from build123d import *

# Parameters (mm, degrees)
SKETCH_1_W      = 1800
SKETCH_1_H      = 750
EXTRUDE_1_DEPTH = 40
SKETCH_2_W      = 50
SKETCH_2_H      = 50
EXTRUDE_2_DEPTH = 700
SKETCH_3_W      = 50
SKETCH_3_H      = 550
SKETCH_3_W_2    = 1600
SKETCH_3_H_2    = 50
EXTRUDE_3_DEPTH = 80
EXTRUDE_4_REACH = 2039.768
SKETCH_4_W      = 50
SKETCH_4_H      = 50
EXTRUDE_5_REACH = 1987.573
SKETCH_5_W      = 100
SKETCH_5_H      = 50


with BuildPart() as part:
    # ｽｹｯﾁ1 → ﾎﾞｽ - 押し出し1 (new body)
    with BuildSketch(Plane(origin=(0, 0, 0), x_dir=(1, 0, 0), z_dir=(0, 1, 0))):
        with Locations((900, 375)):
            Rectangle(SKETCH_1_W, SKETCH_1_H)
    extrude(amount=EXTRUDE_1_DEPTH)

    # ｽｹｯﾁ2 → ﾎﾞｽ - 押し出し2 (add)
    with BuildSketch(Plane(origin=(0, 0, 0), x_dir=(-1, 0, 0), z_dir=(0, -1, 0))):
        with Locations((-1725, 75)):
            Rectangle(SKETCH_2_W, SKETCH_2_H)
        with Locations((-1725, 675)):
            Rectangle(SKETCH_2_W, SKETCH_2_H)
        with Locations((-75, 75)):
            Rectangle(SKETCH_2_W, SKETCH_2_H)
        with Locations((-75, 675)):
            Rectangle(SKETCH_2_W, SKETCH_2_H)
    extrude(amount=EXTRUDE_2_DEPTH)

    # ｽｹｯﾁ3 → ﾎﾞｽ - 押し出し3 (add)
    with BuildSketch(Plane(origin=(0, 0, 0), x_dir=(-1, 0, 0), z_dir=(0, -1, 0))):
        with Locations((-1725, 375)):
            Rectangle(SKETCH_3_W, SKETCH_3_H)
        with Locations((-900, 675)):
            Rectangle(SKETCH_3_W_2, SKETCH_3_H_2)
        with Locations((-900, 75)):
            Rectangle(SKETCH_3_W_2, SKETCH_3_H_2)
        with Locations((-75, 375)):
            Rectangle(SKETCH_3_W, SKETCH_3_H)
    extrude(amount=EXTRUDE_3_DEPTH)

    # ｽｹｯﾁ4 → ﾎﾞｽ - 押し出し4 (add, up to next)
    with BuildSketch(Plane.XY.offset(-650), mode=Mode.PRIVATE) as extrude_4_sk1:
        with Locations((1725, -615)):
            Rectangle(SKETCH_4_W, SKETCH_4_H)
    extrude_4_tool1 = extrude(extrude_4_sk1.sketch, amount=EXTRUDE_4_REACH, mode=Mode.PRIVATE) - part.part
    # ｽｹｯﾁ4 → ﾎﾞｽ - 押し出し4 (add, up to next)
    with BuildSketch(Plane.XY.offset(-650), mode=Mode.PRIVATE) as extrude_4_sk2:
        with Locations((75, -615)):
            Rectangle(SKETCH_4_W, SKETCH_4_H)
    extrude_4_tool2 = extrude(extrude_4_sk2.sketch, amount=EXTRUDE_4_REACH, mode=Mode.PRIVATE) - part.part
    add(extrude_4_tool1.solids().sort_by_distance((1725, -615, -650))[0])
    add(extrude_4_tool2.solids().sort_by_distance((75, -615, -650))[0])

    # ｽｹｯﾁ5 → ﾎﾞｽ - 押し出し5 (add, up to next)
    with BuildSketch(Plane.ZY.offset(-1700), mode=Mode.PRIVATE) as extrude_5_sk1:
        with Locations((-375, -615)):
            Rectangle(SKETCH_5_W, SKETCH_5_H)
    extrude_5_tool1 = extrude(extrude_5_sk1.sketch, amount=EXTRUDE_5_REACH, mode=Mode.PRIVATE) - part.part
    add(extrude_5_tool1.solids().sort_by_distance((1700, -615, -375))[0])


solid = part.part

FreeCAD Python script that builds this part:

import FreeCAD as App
import Part
import Sketcher
Q = App.Units.Quantity


def add_polygon(sketch, points):
    """Adds a closed chain of lines whose ends are joined by coincident constraints."""
    first, n = sketch.GeometryCount, len(points)
    for a, b in zip(points, points[1:] + points[:1]):
        sketch.addGeometry(Part.LineSegment(App.Vector(*a, 0), App.Vector(*b, 0)), False)
    for i in range(n):
        sketch.addConstraint(Sketcher.Constraint("Coincident", first + i, 2, first + (i + 1) % n, 1))

doc = App.newDocument("Part")
body = doc.addObject("PartDesign::Body", "Body")

# Sketch on XZ plane
sketch1 = body.newObject("Sketcher::SketchObject", "Sketch")
sketch1.AttachmentSupport = (doc.getObject("XZ_Plane"), [""])
sketch1.MapMode = "FlatFace"
add_polygon(sketch1, [(0, -750), (0, 0), (1800, 0), (1800, -750)])  # lines 0-3
sketch1.addConstraint([
    Sketcher.Constraint("Vertical", 0),
    Sketcher.Constraint("Horizontal", 1),
    Sketcher.Constraint("Vertical", 2),
    Sketcher.Constraint("Horizontal", 3),
    Sketcher.Constraint("Coincident", 0, 2, -1, 1),
    Sketcher.Constraint("DistanceX", 1, 1, 1, 2, Q("1800 mm")),
    Sketcher.Constraint("DistanceY", 0, 1, 0, 2, Q("750 mm")),
])
pad1 = body.newObject("PartDesign::Pad", "Pad")
pad1.Profile = sketch1
pad1.Length = 40
pad1.Reversed = True

# Sketch on XZ plane
sketch2 = body.newObject("Sketcher::SketchObject", "Sketch001")
sketch2.AttachmentSupport = (doc.getObject("XZ_Plane"), [""])
sketch2.MapMode = "FlatFace"
add_polygon(sketch2, [(1750, -100), (1750, -50), (1700, -50), (1700, -100)])  # lines 0-3
add_polygon(sketch2, [(1750, -700), (1750, -650), (1700, -650), (1700, -700)])  # lines 4-7
add_polygon(sketch2, [(100, -100), (100, -50), (50, -50), (50, -100)])  # lines 8-11
add_polygon(sketch2, [(100, -700), (100, -650), (50, -650), (50, -700)])  # lines 12-15
sketch2.addConstraint([
    Sketcher.Constraint("Vertical", 0),
    Sketcher.Constraint("Horizontal", 1),
    Sketcher.Constraint("Vertical", 2),
    Sketcher.Constraint("Horizontal", 3),
    Sketcher.Constraint("Vertical", 4),
    Sketcher.Constraint("Horizontal", 5),
    Sketcher.Constraint("Vertical", 6),
    Sketcher.Constraint("Horizontal", 7),
    Sketcher.Constraint("Vertical", 8),
    Sketcher.Constraint("Horizontal", 9),
    Sketcher.Constraint("Vertical", 10),
    Sketcher.Constraint("Horizontal", 11),
    Sketcher.Constraint("Vertical", 12),
    Sketcher.Constraint("Horizontal", 13),
    Sketcher.Constraint("Vertical", 14),
    Sketcher.Constraint("Horizontal", 15),
    Sketcher.Constraint("Horizontal", 1, 2, 8, 2),
    Sketcher.Constraint("Horizontal", 3, 2, 10, 2),
    Sketcher.Constraint("Horizontal", 5, 2, 12, 2),
    Sketcher.Constraint("Horizontal", 7, 2, 14, 2),
    Sketcher.Constraint("Vertical", 3, 2, 4, 2),
    Sketcher.Constraint("Vertical", 2, 2, 5, 2),
    Sketcher.Constraint("Vertical", 11, 2, 12, 2),
    Sketcher.Constraint("Vertical", 10, 2, 13, 2),
    Sketcher.Constraint("Equal", 7, 9),
    Sketcher.Constraint("Equal", 15, 0),
    Sketcher.Constraint("Equal", 2, 4),
    Sketcher.Constraint("DistanceX", 1, 2, 1, 1, Q("50 mm")),
    Sketcher.Constraint("DistanceX", -1, 1, 0, 2, Q("1750 mm")),
    Sketcher.Constraint("DistanceY", 0, 2, -1, 1, Q("50 mm")),
    Sketcher.Constraint("DistanceY", 4, 2, -1, 1, Q("650 mm")),
    Sketcher.Constraint("DistanceX", -1, 1, 8, 2, Q("100 mm")),
])
pad2 = body.newObject("PartDesign::Pad", "Pad001")
pad2.Profile = sketch2
pad2.Length = 700

# Sketch on XZ plane
sketch3 = body.newObject("Sketcher::SketchObject", "Sketch002")
sketch3.AttachmentSupport = (doc.getObject("XZ_Plane"), [""])
sketch3.MapMode = "FlatFace"
add_polygon(sketch3, [(1750, -650), (1750, -100), (1700, -100), (1700, -650)])  # lines 0-3
add_polygon(sketch3, [(1700, -700), (1700, -650), (100, -650), (100, -700)])  # lines 4-7
add_polygon(sketch3, [(1700, -100), (1700, -50), (100, -50), (100, -100)])  # lines 8-11
add_polygon(sketch3, [(100, -650), (100, -100), (50, -100), (50, -650)])  # lines 12-15
sketch3.addConstraint([
    Sketcher.Constraint("Vertical", 0),
    Sketcher.Constraint("Horizontal", 1),
    Sketcher.Constraint("Vertical", 2),
    Sketcher.Constraint("Horizontal", 3),
    Sketcher.Constraint("Vertical", 4),
    Sketcher.Constraint("Horizontal", 5),
    Sketcher.Constraint("Vertical", 6),
    Sketcher.Constraint("Horizontal", 7),
    Sketcher.Constraint("Vertical", 8),
    Sketcher.Constraint("Horizontal", 9),
    Sketcher.Constraint("Vertical", 10),
    Sketcher.Constraint("Horizontal", 11),
    Sketcher.Constraint("Vertical", 12),
    Sketcher.Constraint("Horizontal", 13),
    Sketcher.Constraint("Vertical", 14),
    Sketcher.Constraint("Horizontal", 15),
    Sketcher.Constraint("Coincident", 4, 2, 2, 2),
    Sketcher.Constraint("Coincident", 11, 2, 1, 2),
    Sketcher.Constraint("Coincident", 12, 2, 10, 2),
    Sketcher.Constraint("Coincident", 15, 2, 5, 2),
    Sketcher.Constraint("Equal", 3, 13),
    Sketcher.Constraint("Equal", 15, 4),
    Sketcher.Constraint("Equal", 6, 8),
    Sketcher.Constraint("DistanceX", 1, 2, 1, 1, Q("50 mm")),
    Sketcher.Constraint("DistanceX", 5, 2, 5, 1, Q("1600 mm")),
    Sketcher.Constraint("DistanceY", 0, 1, 0, 2, Q("550 mm")),
    Sketcher.Constraint("DistanceX", -1, 1, 0, 2, Q("1750 mm")),
    Sketcher.Constraint("DistanceY", 0, 2, -1, 1, Q("100 mm")),
])
pad3 = body.newObject("PartDesign::Pad", "Pad002")
pad3.Profile = sketch3
pad3.Length = 80

# Sketch on XY plane
sketch4 = body.newObject("Sketcher::SketchObject", "Sketch003")
sketch4.AttachmentSupport = (doc.getObject("XY_Plane"), [""])
sketch4.MapMode = "FlatFace"
sketch4.AttachmentOffset = App.Placement(App.Vector(0, 0, -650), App.Rotation())
add_polygon(sketch4, [(1700, -590), (1700, -640), (1750, -640), (1750, -590)])  # lines 0-3
sketch4.addConstraint([
    Sketcher.Constraint("Vertical", 0),
    Sketcher.Constraint("Horizontal", 1),
    Sketcher.Constraint("Vertical", 2),
    Sketcher.Constraint("Horizontal", 3),
    Sketcher.Constraint("Equal", 3, 0),
    Sketcher.Constraint("DistanceX", 1, 1, 1, 2, Q("50 mm")),
    Sketcher.Constraint("DistanceX", -1, 1, 0, 2, Q("1700 mm")),
    Sketcher.Constraint("DistanceY", 0, 2, -1, 1, Q("640 mm")),
])
pad4 = body.newObject("PartDesign::Pad", "Pad003")
pad4.Profile = sketch4
pad4.Type = "UpToFirst"

# Sketch on XY plane
sketch5 = body.newObject("Sketcher::SketchObject", "Sketch004")
sketch5.AttachmentSupport = (doc.getObject("XY_Plane"), [""])
sketch5.MapMode = "FlatFace"
sketch5.AttachmentOffset = App.Placement(App.Vector(0, 0, -650), App.Rotation())
add_polygon(sketch5, [(50, -590), (50, -640), (100, -640), (100, -590)])  # lines 0-3
sketch5.addConstraint([
    Sketcher.Constraint("Vertical", 0),
    Sketcher.Constraint("Horizontal", 1),
    Sketcher.Constraint("Vertical", 2),
    Sketcher.Constraint("Horizontal", 3),
    Sketcher.Constraint("Equal", 3, 0),
    Sketcher.Constraint("DistanceX", 1, 1, 1, 2, Q("50 mm")),
    Sketcher.Constraint("DistanceX", -1, 1, 0, 2, Q("50 mm")),
    Sketcher.Constraint("DistanceY", 0, 2, -1, 1, Q("640 mm")),
])
pad5 = body.newObject("PartDesign::Pad", "Pad004")
pad5.Profile = sketch5
pad5.Type = "UpToFirst"

# Sketch on YZ plane
sketch6 = body.newObject("Sketcher::SketchObject", "Sketch005")
sketch6.AttachmentSupport = (doc.getObject("YZ_Plane"), [""])
sketch6.MapMode = "FlatFace"
sketch6.AttachmentOffset = App.Placement(App.Vector(0, 0, 1700), App.Rotation())
add_polygon(sketch6, [(-590, -425), (-640, -425), (-640, -325), (-590, -325)])  # lines 0-3
sketch6.addConstraint([
    Sketcher.Constraint("Horizontal", 0),
    Sketcher.Constraint("Vertical", 1),
    Sketcher.Constraint("Horizontal", 2),
    Sketcher.Constraint("Vertical", 3),
    Sketcher.Constraint("DistanceX", 0, 2, 0, 1, Q("50 mm")),
    Sketcher.Constraint("DistanceY", 1, 1, 1, 2, Q("100 mm")),
    Sketcher.Constraint("DistanceX", 0, 2, -1, 1, Q("640 mm")),
    Sketcher.Constraint("DistanceY", 0, 2, -1, 1, Q("425 mm")),
])
pad6 = body.newObject("PartDesign::Pad", "Pad005")
pad6.Profile = sketch6
pad6.Type = "UpToFirst"
pad6.Reversed = True

doc.recompute()
